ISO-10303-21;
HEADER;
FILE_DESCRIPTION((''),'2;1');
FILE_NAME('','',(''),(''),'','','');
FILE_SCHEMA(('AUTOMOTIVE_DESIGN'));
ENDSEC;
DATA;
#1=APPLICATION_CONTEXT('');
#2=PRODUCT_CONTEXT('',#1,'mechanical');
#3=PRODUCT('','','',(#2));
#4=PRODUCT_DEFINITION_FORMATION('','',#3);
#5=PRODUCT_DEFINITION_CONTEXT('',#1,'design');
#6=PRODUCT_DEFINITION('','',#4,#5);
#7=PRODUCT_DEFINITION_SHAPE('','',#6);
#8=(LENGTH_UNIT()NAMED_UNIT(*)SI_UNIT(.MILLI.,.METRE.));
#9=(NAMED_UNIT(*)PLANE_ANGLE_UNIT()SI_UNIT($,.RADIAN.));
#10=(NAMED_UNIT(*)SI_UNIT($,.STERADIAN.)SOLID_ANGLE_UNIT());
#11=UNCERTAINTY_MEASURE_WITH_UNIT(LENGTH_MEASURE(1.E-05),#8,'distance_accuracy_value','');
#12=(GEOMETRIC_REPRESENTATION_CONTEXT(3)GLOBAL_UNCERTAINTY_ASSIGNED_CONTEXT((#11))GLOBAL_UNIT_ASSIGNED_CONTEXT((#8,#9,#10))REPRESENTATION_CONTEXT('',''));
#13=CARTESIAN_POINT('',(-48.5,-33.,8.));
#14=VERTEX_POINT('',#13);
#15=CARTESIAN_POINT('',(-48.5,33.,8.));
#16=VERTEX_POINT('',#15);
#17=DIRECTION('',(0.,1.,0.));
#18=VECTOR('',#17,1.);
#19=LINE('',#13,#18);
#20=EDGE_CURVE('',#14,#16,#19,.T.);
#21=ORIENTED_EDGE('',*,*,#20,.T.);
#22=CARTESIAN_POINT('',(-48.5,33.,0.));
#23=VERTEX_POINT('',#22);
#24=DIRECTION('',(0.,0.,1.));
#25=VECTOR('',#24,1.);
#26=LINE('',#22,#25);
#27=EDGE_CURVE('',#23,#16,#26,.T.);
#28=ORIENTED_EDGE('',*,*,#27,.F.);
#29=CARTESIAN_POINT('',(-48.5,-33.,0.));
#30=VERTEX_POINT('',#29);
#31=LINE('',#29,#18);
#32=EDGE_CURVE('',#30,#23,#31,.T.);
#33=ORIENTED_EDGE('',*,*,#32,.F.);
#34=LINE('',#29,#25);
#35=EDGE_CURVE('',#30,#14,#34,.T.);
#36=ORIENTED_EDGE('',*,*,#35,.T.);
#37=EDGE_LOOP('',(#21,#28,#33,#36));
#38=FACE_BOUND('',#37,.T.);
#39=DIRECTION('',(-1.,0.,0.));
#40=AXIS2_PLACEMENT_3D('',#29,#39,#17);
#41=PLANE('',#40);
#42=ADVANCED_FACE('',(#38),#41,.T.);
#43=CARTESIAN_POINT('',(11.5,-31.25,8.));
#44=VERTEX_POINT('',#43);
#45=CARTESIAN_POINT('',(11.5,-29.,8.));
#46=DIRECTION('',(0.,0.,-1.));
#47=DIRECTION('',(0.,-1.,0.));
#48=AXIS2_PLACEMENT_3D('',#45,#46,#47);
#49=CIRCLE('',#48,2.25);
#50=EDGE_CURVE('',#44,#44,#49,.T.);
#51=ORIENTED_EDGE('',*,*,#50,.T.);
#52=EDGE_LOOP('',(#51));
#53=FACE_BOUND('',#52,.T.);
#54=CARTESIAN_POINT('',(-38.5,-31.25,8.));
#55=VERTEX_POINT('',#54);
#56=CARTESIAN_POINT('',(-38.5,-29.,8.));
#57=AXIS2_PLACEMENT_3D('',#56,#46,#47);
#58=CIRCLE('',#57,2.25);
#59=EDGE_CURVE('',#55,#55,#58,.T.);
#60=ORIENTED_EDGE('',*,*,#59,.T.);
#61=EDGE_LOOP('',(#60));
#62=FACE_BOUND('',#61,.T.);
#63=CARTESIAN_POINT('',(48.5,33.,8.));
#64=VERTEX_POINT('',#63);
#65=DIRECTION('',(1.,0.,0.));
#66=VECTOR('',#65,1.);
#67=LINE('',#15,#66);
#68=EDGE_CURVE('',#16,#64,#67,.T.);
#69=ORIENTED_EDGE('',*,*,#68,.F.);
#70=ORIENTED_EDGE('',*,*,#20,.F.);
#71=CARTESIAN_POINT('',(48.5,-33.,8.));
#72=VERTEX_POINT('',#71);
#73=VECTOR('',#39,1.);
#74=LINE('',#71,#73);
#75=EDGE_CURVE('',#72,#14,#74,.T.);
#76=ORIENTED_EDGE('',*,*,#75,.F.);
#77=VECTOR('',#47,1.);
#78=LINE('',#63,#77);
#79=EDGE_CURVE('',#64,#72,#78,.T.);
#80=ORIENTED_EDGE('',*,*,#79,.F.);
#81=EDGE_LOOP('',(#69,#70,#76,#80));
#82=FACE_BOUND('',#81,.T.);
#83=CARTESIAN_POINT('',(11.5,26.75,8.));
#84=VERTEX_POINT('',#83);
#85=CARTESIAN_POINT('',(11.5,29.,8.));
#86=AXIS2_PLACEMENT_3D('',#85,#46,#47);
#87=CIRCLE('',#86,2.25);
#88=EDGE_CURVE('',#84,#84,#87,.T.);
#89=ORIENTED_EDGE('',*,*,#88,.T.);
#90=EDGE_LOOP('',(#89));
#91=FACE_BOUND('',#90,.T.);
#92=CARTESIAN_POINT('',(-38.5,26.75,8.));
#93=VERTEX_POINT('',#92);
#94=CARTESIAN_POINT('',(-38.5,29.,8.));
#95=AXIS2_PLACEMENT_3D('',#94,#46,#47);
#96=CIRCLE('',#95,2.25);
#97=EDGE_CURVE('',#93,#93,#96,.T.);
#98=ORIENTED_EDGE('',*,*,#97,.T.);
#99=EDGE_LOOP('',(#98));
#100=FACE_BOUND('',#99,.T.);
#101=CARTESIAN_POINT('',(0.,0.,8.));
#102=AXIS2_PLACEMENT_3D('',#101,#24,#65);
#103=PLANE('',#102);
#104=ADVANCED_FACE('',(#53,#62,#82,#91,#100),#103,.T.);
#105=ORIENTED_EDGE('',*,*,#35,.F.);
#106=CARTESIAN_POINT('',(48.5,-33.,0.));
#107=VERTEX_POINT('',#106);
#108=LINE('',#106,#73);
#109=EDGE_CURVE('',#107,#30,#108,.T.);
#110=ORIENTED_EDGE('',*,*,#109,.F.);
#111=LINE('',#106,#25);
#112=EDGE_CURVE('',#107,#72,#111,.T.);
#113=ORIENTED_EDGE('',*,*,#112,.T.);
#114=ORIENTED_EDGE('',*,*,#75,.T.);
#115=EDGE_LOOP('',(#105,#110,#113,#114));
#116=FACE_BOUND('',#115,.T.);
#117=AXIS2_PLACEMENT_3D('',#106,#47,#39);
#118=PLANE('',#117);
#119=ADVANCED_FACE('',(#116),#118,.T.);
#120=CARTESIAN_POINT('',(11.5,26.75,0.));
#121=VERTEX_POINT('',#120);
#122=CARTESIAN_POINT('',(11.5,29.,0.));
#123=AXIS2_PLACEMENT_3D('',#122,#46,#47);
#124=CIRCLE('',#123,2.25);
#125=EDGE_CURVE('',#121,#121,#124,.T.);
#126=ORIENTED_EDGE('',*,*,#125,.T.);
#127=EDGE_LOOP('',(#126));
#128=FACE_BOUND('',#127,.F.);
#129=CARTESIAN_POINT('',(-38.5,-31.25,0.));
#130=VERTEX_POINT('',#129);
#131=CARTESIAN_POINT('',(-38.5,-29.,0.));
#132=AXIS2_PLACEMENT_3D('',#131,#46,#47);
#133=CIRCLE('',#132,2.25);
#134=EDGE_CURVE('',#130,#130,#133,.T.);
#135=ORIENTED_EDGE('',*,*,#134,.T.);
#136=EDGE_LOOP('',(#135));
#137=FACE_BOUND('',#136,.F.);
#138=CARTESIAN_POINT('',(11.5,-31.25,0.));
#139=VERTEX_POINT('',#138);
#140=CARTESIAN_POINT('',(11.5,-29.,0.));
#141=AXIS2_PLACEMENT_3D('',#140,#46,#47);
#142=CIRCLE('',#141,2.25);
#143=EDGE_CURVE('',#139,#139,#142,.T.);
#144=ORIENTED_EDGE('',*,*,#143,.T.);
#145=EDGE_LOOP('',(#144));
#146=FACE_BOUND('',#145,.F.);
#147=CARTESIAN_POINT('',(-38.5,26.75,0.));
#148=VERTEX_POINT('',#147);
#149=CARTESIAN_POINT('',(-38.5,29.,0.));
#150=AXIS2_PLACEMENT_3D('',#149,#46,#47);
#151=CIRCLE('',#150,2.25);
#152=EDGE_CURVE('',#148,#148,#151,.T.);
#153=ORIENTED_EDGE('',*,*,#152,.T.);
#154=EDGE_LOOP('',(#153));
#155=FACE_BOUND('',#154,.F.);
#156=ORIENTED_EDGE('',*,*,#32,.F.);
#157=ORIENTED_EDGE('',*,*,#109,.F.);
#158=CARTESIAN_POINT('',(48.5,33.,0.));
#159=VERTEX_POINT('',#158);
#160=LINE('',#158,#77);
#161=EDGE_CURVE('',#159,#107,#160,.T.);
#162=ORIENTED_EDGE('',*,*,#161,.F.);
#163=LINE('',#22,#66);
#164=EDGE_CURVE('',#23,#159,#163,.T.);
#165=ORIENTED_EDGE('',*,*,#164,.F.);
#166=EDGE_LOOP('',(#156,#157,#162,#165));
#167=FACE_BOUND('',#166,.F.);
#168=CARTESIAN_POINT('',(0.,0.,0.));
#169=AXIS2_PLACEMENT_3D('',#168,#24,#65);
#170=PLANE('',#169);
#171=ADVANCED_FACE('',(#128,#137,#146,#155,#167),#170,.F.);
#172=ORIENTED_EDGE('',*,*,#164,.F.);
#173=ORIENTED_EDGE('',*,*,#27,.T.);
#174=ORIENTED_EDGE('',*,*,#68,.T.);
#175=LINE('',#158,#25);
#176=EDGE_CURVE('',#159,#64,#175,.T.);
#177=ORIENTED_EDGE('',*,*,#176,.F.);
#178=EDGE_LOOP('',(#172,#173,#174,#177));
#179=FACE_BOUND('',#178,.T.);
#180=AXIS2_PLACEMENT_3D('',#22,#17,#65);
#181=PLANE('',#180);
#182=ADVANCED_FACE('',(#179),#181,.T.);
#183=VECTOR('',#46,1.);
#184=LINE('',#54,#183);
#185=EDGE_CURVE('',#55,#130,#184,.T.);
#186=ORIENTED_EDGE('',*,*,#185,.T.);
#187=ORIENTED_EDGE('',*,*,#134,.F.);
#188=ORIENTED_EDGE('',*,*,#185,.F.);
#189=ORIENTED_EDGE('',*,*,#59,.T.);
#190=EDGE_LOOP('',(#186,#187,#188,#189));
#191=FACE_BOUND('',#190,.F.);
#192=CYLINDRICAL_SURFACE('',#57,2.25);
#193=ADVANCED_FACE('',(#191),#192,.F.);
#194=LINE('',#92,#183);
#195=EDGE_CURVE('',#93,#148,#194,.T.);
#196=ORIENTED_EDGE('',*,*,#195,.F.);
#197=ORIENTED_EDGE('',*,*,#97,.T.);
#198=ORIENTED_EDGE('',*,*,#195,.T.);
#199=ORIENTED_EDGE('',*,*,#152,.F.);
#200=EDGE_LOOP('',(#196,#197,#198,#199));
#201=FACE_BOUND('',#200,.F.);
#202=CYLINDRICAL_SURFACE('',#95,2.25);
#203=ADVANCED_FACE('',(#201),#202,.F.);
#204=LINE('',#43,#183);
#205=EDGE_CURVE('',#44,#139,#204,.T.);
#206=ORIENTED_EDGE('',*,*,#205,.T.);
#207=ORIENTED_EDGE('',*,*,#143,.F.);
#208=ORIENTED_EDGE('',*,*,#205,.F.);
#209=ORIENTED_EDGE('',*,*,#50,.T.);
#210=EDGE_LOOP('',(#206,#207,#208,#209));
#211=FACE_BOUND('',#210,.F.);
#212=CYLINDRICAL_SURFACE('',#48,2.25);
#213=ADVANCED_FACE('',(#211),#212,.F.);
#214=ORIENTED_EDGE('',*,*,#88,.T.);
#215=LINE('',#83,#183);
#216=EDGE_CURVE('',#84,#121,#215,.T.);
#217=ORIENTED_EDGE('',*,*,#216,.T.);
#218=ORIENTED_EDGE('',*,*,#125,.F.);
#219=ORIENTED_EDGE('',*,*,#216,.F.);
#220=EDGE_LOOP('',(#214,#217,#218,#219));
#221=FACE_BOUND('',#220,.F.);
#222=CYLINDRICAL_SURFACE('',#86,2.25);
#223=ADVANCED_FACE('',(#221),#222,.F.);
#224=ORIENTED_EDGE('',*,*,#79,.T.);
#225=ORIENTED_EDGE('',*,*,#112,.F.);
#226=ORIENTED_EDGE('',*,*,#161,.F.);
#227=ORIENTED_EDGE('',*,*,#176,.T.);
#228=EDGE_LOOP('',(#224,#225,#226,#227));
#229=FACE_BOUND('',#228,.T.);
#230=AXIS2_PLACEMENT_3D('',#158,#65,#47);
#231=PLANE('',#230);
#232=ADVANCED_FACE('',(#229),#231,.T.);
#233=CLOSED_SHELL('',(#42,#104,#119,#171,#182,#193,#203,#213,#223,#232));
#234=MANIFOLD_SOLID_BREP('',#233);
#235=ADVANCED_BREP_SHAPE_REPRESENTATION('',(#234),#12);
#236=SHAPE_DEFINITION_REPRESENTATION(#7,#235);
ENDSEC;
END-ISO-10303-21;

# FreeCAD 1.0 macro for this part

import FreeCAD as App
import Part
import Sketcher

V = App.Vector
Q = App.Units.Quantity

doc = App.newDocument("Part")
body = doc.addObject("PartDesign::Body", "Body")

sketch1 = doc.addObject("Sketcher::SketchObject", "Sketch")
body.addObject(sketch1)
sketch1.AttachmentSupport = (doc.XY_Plane, [""])
sketch1.MapMode = "FlatFace"
sketch1.addGeometry([
    Part.LineSegment(V(48, 33, 0), V(-48, 33, 0)),
    Part.LineSegment(V(-48, 33, 0), V(-48, -33, 0)),
    Part.LineSegment(V(-48, -33, 0), V(48, -33, 0)),
    Part.LineSegment(V(48, -33, 0), V(48, 33, 0)),
], False)
sketch1.addConstraint([
    Sketcher.Constraint("Coincident", 0, 2, 1, 1),
    Sketcher.Constraint("Coincident", 1, 2, 2, 1),
    Sketcher.Constraint("Coincident", 2, 2, 3, 1),
    Sketcher.Constraint("Coincident", 3, 2, 0, 1),
    Sketcher.Constraint("Horizontal", 0),
    Sketcher.Constraint("Vertical", 1),
    Sketcher.Constraint("Horizontal", 2),
    Sketcher.Constraint("Vertical", 3),
    Sketcher.Constraint("Symmetric", 0, 2, 2, 2, -1, 1),
    Sketcher.Constraint("DistanceX", 0, 2, 0, 1, Q("97 mm")),
    Sketcher.Constraint("DistanceY", 1, 2, 1, 1, Q("66 mm")),
])
pad1 = doc.addObject("PartDesign::Pad", "Pad")
body.addObject(pad1)
pad1.Profile = sketch1
pad1.Length = 8

sketch2 = doc.addObject("Sketcher::SketchObject", "Sketch001")
body.addObject(sketch2)
sketch2.AttachmentSupport = (doc.XY_Plane, [""])
sketch2.MapMode = "FlatFace"
sketch2.AttachmentOffset = App.Placement(V(0, 0, 8), App.Rotation())
sketch2.addGeometry([
    Part.Circle(V(-38.5, -29, 0), V(0, 0, 1), 2.2),
    Part.Circle(V(-38.5, 29, 0), V(0, 0, 1), 2.2),
], False)
sketch2.addConstraint([
    Sketcher.Constraint("Equal", 0, 1),
    Sketcher.Constraint("Symmetric", 0, 3, 1, 3, -1),
    Sketcher.Constraint("Diameter", 0, Q("4.5 mm")),
    Sketcher.Constraint("DistanceY", 0, 3, -1, 1, Q("29 mm")),
    Sketcher.Constraint("DistanceX", 0, 3, -1, 1, Q("38.5 mm")),
])
doc.recompute()
hole = doc.addObject("PartDesign::Hole", "Hole")
body.addObject(hole)
hole.Profile = sketch2
hole.ThreadType = "None"
hole.Diameter = 4.5
hole.DepthType = "ThroughAll"
doc.recompute()

linearpattern = doc.addObject("PartDesign::LinearPattern", "LinearPattern")
body.addObject(linearpattern)
linearpattern.Originals = [hole]
linearpattern.Direction = (doc.X_Axis, [""])
linearpattern.Mode = "offset"
linearpattern.Offset = 50
linearpattern.Occurrences = 2
body.Tip = linearpattern

doc.recompute()
